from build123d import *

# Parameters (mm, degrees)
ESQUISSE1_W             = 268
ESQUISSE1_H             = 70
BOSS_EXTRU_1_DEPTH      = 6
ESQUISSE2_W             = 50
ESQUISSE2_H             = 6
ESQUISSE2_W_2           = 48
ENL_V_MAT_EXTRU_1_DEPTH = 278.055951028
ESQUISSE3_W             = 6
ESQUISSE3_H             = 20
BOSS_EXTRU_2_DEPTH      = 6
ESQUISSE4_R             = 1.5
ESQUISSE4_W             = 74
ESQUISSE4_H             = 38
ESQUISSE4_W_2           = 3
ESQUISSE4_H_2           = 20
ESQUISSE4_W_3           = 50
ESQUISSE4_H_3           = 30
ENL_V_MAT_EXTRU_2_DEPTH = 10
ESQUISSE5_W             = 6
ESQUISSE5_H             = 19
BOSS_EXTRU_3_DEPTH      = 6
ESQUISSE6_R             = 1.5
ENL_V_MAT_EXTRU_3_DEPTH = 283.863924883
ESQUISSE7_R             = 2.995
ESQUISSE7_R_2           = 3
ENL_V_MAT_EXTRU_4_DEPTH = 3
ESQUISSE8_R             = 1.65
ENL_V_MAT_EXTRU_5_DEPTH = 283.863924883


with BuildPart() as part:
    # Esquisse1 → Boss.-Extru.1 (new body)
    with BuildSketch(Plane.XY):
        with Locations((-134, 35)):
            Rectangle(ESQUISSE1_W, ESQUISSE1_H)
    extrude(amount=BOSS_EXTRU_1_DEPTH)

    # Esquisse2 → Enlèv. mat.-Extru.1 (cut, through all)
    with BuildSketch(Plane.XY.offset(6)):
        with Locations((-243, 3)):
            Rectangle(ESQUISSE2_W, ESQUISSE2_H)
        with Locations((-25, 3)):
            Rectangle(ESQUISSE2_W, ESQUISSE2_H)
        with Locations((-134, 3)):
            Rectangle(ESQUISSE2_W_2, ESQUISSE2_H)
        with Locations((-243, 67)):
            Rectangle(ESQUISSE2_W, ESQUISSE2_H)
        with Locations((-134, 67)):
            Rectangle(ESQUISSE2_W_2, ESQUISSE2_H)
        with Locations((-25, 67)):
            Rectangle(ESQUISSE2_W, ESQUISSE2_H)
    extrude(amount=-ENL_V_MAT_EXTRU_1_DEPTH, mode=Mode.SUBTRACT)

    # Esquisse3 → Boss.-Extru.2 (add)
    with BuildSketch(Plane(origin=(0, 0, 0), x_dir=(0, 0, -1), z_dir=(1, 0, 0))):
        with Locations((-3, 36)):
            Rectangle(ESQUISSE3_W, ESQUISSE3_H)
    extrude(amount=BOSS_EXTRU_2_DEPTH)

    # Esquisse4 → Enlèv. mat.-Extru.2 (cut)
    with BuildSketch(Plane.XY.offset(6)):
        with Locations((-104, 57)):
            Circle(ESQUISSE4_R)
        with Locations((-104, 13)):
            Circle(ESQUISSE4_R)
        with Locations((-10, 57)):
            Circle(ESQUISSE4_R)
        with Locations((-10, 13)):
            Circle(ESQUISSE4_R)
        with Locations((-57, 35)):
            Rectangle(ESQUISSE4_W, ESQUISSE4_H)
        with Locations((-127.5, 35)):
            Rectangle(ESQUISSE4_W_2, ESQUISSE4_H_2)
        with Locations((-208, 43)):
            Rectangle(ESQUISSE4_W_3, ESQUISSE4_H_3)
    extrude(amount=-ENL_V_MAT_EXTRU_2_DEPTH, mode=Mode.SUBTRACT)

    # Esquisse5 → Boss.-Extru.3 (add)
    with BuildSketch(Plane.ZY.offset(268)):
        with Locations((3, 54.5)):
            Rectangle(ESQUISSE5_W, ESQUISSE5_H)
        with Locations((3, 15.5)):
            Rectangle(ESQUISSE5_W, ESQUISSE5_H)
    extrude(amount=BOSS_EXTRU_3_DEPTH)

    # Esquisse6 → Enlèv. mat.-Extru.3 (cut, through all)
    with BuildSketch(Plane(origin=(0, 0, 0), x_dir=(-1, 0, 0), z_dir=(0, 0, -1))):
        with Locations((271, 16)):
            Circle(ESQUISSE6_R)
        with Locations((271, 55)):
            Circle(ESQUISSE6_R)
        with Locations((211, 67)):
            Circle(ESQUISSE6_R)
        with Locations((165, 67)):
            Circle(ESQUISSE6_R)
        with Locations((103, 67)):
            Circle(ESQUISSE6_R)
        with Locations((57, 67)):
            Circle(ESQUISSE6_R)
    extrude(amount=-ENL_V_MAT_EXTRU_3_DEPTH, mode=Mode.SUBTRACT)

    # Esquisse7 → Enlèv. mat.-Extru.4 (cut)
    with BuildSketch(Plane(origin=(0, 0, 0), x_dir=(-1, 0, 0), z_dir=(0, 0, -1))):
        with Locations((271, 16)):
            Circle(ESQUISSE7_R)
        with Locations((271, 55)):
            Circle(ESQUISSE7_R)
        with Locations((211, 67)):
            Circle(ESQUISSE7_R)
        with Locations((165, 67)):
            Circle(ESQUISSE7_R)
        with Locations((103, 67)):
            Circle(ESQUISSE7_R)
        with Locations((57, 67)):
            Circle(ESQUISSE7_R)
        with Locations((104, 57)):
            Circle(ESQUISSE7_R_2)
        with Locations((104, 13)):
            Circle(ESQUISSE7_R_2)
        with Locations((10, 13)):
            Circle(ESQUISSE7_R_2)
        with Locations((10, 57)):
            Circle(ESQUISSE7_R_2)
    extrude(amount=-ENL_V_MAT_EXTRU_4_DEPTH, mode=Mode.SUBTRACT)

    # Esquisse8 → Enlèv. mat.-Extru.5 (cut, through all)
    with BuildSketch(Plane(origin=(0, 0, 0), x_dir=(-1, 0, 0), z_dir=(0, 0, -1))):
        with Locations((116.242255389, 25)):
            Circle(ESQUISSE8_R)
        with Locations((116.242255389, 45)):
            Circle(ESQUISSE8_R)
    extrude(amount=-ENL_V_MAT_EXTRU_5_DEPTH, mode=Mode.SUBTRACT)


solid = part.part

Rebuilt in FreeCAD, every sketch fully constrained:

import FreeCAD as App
import Part
import Sketcher
from FreeCAD import Vector


def add_polygon(sketch, points):
    """Adds a closed chain of lines whose ends are joined by coincident constraints."""
    first, n = sketch.GeometryCount, len(points)
    for a, b in zip(points, points[1:] + points[:1]):
        sketch.addGeometry(Part.LineSegment(App.Vector(*a, 0), App.Vector(*b, 0)), False)
    for i in range(n):
        sketch.addConstraint(Sketcher.Constraint("Coincident", first + i, 2, first + (i + 1) % n, 1))

doc = App.newDocument("Part")
body = doc.addObject("PartDesign::Body", "Body")

sketch1 = body.newObject("Sketcher::SketchObject", "Sketch")
sketch1.AttachmentSupport = (doc.getObject("XY_Plane"), [""])
sketch1.MapMode = "FlatFace"
add_polygon(sketch1, [(-268, 70), (-268, 0), (0, 0), (0, 70)])
sketch1.addConstraint([
    Sketcher.Constraint("Vertical", 0),
    Sketcher.Constraint("Horizontal", 1),
    Sketcher.Constraint("Vertical", 2),
    Sketcher.Constraint("Horizontal", 3),
    Sketcher.Constraint("Coincident", 1, 2, -1, 1),
    Sketcher.Constraint("DistanceX", 1, 1, 1, 2, 268.0),
    Sketcher.Constraint("DistanceY", 0, 2, 0, 1, 70.0),
])
pad1 = body.newObject("PartDesign::Pad", "Pad")
pad1.Profile = sketch1
pad1.Length = 6

sketch2 = body.newObject("Sketcher::SketchObject", "Sketch001")
sketch2.AttachmentSupport = (doc.getObject("XY_Plane"), [""])
sketch2.MapMode = "FlatFace"
sketch2.AttachmentOffset = App.Placement(Vector(0, 0, 6), App.Rotation())
add_polygon(sketch2, [(-268, 6), (-268, 0), (-218, 0), (-218, 6)])
add_polygon(sketch2, [(-50, 6), (-50, 0), (0, 0), (0, 6)])
add_polygon(sketch2, [(-158, 6), (-158, 0), (-110, 0), (-110, 6)])
add_polygon(sketch2, [(-268, 70), (-268, 64), (-218, 64), (-218, 70)])
add_polygon(sketch2, [(-158, 70), (-158, 64), (-110, 64), (-110, 70)])
add_polygon(sketch2, [(-50, 70), (-50, 64), (0, 64), (0, 70)])
sketch2.addConstraint([
    Sketcher.Constraint("Vertical", 0),
    Sketcher.Constraint("Horizontal", 1),
    Sketcher.Constraint("Vertical", 2),
    Sketcher.Constraint("Horizontal", 3),
    Sketcher.Constraint("Vertical", 4),
    Sketcher.Constraint("Horizontal", 5),
    Sketcher.Constraint("Vertical", 6),
    Sketcher.Constraint("Horizontal", 7),
    Sketcher.Constraint("Vertical", 8),
    Sketcher.Constraint("Horizontal", 9),
    Sketcher.Constraint("Vertical", 10),
    Sketcher.Constraint("Horizontal", 11),
    Sketcher.Constraint("Vertical", 12),
    Sketcher.Constraint("Horizontal", 13),
    Sketcher.Constraint("Vertical", 14),
    Sketcher.Constraint("Horizontal", 15),
    Sketcher.Constraint("Vertical", 16),
    Sketcher.Constraint("Horizontal", 17),
    Sketcher.Constraint("Vertical", 18),
    Sketcher.Constraint("Horizontal", 19),
    Sketcher.Constraint("Vertical", 20),
    Sketcher.Constraint("Horizontal", 21),
    Sketcher.Constraint("Vertical", 22),
    Sketcher.Constraint("Horizontal", 23),
    Sketcher.Constraint("Coincident", 5, 2, -1, 1),
    Sketcher.Constraint("PointOnObject", 0, 2, -1),
    Sketcher.Constraint("PointOnObject", 8, 2, -1),
    Sketcher.Constraint("PointOnObject", 21, 2, -2),
    Sketcher.Constraint("Horizontal", 3, 2, 6, 2),
    Sketcher.Constraint("Horizontal", 7, 2, 10, 2),
    Sketcher.Constraint("Horizontal", 13, 2, 16, 2),
    Sketcher.Constraint("Horizontal", 15, 2, 18, 2),
    Sketcher.Constraint("Horizontal", 17, 2, 20, 2),
    Sketcher.Constraint("Horizontal", 19, 2, 22, 2),
    Sketcher.Constraint("Vertical", 3, 2, 12, 2),
    Sketcher.Constraint("Vertical", 2, 2, 13, 2),
    Sketcher.Constraint("Vertical", 11, 2, 16, 2),
    Sketcher.Constraint("Vertical", 10, 2, 17, 2),
    Sketcher.Constraint("Vertical", 7, 2, 20, 2),
    Sketcher.Constraint("Equal", 3, 5),
    Sketcher.Constraint("Equal", 10, 12),
    Sketcher.Constraint("DistanceX", 1, 1, 1, 2, 50.0),
    Sketcher.Constraint("DistanceX", 9, 1, 9, 2, 48.0),
    Sketcher.Constraint("DistanceY", 0, 2, 0, 1, 6.0),
    Sketcher.Constraint("DistanceX", 0, 2, -1, 1, 268.0),
    Sketcher.Constraint("DistanceX", 8, 2, -1, 1, 158.0),
    Sketcher.Constraint("DistanceY", -1, 1, 12, 2, 64.0),
])
pocket1 = body.newObject("PartDesign::Pocket", "Pocket")
pocket1.Profile = sketch2
pocket1.Type = "ThroughAll"

sketch3 = body.newObject("Sketcher::SketchObject", "Sketch002")
sketch3.AttachmentSupport = (doc.getObject("YZ_Plane"), [""])
sketch3.MapMode = "FlatFace"
add_polygon(sketch3, [(46, 6), (26, 6), (26, 0), (46, 0)])
sketch3.addConstraint([
    Sketcher.Constraint("Horizontal", 0),
    Sketcher.Constraint("Vertical", 1),
    Sketcher.Constraint("Horizontal", 2),
    Sketcher.Constraint("Vertical", 3),
    Sketcher.Constraint("PointOnObject", 1, 2, -1),
    Sketcher.Constraint("DistanceX", 0, 2, 0, 1, 20.0),
    Sketcher.Constraint("DistanceY", 1, 2, 1, 1, 6.0),
    Sketcher.Constraint("DistanceX", -1, 1, 0, 2, 26.0),
])
pad2 = body.newObject("PartDesign::Pad", "Pad001")
pad2.Profile = sketch3
pad2.Length = 6

sketch4 = body.newObject("Sketcher::SketchObject", "Sketch003")
sketch4.AttachmentSupport = (doc.getObject("XY_Plane"), [""])
sketch4.MapMode = "FlatFace"
sketch4.AttachmentOffset = App.Placement(Vector(0, 0, 6), App.Rotation())
sketch4.addGeometry(Part.Circle(Vector(-104, 57, 0), Vector(0, 0, 1), 1.5), False)
sketch4.addGeometry(Part.Circle(Vector(-104, 13, 0), Vector(0, 0, 1), 1.5), False)
sketch4.addGeometry(Part.Circle(Vector(-10, 57, 0), Vector(0, 0, 1), 1.5), False)
sketch4.addGeometry(Part.Circle(Vector(-10, 13, 0), Vector(0, 0, 1), 1.5), False)
add_polygon(sketch4, [(-94, 54), (-94, 16), (-20, 16), (-20, 54)])
add_polygon(sketch4, [(-129, 45), (-129, 25), (-126, 25), (-126, 45)])
add_polygon(sketch4, [(-233, 58), (-233, 28), (-183, 28), (-183, 58)])
sketch4.addConstraint([
    Sketcher.Constraint("Vertical", 4),
    Sketcher.Constraint("Horizontal", 5),
    Sketcher.Constraint("Vertical", 6),
    Sketcher.Constraint("Horizontal", 7),
    Sketcher.Constraint("Vertical", 8),
    Sketcher.Constraint("Horizontal", 9),
    Sketcher.Constraint("Vertical", 10),
    Sketcher.Constraint("Horizontal", 11),
    Sketcher.Constraint("Vertical", 12),
    Sketcher.Constraint("Horizontal", 13),
    Sketcher.Constraint("Vertical", 14),
    Sketcher.Constraint("Horizontal", 15),
    Sketcher.Constraint("Equal", 0, 1),
    Sketcher.Constraint("Equal", 1, 2),
    Sketcher.Constraint("Equal", 2, 3),
    Sketcher.Constraint("Horizontal", 0, 3, 2, 3),
    Sketcher.Constraint("Horizontal", 1, 3, 3, 3),
    Sketcher.Constraint("Vertical", 0, 3, 1, 3),
    Sketcher.Constraint("Vertical", 2, 3, 3, 3),
    Sketcher.Constraint("Diameter", 0, 3.0),
    Sketcher.Constraint("DistanceX", 5, 1, 5, 2, 74.0),
    Sketcher.Constraint("DistanceX", 9, 1, 9, 2, 3.0),
    Sketcher.Constraint("DistanceX", 13, 1, 13, 2, 50.0),
    Sketcher.Constraint("DistanceY", 4, 2, 4, 1, 38.0),
    Sketcher.Constraint("DistanceY", 8, 2, 8, 1, 20.0),
    Sketcher.Constraint("DistanceY", 12, 2, 12, 1, 30.0),
    Sketcher.Constraint("DistanceX", 0, 3, -1, 1, 104.0),
    Sketcher.Constraint("DistanceY", -1, 1, 0, 3, 57.0),
    Sketcher.Constraint("DistanceY", -1, 1, 1, 3, 13.0),
    Sketcher.Constraint("DistanceX", 2, 3, -1, 1, 10.0),
    Sketcher.Constraint("DistanceX", 4, 2, -1, 1, 94.0),
    Sketcher.Constraint("DistanceY", -1, 1, 4, 2, 16.0),
    Sketcher.Constraint("DistanceX", 8, 2, -1, 1, 129.0),
    Sketcher.Constraint("DistanceY", -1, 1, 8, 2, 25.0),
    Sketcher.Constraint("DistanceX", 12, 2, -1, 1, 233.0),
    Sketcher.Constraint("DistanceY", -1, 1, 12, 2, 28.0),
])
pocket2 = body.newObject("PartDesign::Pocket", "Pocket001")
pocket2.Profile = sketch4
pocket2.Length = 10

sketch5 = body.newObject("Sketcher::SketchObject", "Sketch004")
sketch5.AttachmentSupport = (doc.getObject("YZ_Plane"), [""])
sketch5.MapMode = "FlatFace"
sketch5.AttachmentOffset = App.Placement(Vector(0, 0, -268), App.Rotation())
add_polygon(sketch5, [(64, 0), (45, 0), (45, 6), (64, 6)])
add_polygon(sketch5, [(25, 0), (6, 0), (6, 6), (25, 6)])
sketch5.addConstraint([
    Sketcher.Constraint("Horizontal", 0),
    Sketcher.Constraint("Vertical", 1),
    Sketcher.Constraint("Horizontal", 2),
    Sketcher.Constraint("Vertical", 3),
    Sketcher.Constraint("Horizontal", 4),
    Sketcher.Constraint("Vertical", 5),
    Sketcher.Constraint("Horizontal", 6),
    Sketcher.Constraint("Vertical", 7),
    Sketcher.Constraint("PointOnObject", 0, 2, -1),
    Sketcher.Constraint("PointOnObject", 4, 2, -1),
    Sketcher.Constraint("Horizontal", 2, 2, 5, 2),
    Sketcher.Constraint("Equal", 2, 4),
    Sketcher.Constraint("DistanceX", 0, 2, 0, 1, 19.0),
    Sketcher.Constraint("DistanceY", 1, 1, 1, 2, 6.0),
    Sketcher.Constraint("DistanceX", -1, 1, 0, 2, 45.0),
    Sketcher.Constraint("DistanceX", -1, 1, 4, 2, 6.0),
])
pad3 = body.newObject("PartDesign::Pad", "Pad002")
pad3.Profile = sketch5
pad3.Length = 6
pad3.Reversed = True

sketch6 = body.newObject("Sketcher::SketchObject", "Sketch005")
sketch6.AttachmentSupport = (doc.getObject("XY_Plane"), [""])
sketch6.MapMode = "FlatFace"
sketch6.addGeometry([
    Part.Circle(Vector(-271, 16, 0), Vector(0, 0, 1), 1.5),
    Part.Circle(Vector(-271, 55, 0), Vector(0, 0, 1), 1.5),
    Part.Circle(Vector(-211, 67, 0), Vector(0, 0, 1), 1.5),
    Part.Circle(Vector(-165, 67, 0), Vector(0, 0, 1), 1.5),
    Part.Circle(Vector(-103, 67, 0), Vector(0, 0, 1), 1.5),
    Part.Circle(Vector(-57, 67, 0), Vector(0, 0, 1), 1.5),
], False)
sketch6.addConstraint([
    Sketcher.Constraint("Equal", 0, 1),
    Sketcher.Constraint("Equal", 1, 2),
    Sketcher.Constraint("Equal", 2, 3),
    Sketcher.Constraint("Equal", 3, 4),
    Sketcher.Constraint("Equal", 4, 5),
    Sketcher.Constraint("Horizontal", 2, 3, 3, 3),
    Sketcher.Constraint("Horizontal", 3, 3, 4, 3),
    Sketcher.Constraint("Horizontal", 4, 3, 5, 3),
    Sketcher.Constraint("Vertical", 0, 3, 1, 3),
    Sketcher.Constraint("Diameter", 0, 3.0),
    Sketcher.Constraint("DistanceX", 0, 3, -1, 1, 271.0),
    Sketcher.Constraint("DistanceY", -1, 1, 0, 3, 16.0),
    Sketcher.Constraint("DistanceY", -1, 1, 1, 3, 55.0),
    Sketcher.Constraint("DistanceX", 2, 3, -1, 1, 211.0),
    Sketcher.Constraint("DistanceY", -1, 1, 2, 3, 67.0),
    Sketcher.Constraint("DistanceX", 3, 3, -1, 1, 165.0),
    Sketcher.Constraint("DistanceX", 4, 3, -1, 1, 103.0),
    Sketcher.Constraint("DistanceX", 5, 3, -1, 1, 57.0),
])
pocket3 = body.newObject("PartDesign::Pocket", "Pocket002")
pocket3.Profile = sketch6
pocket3.Type = "ThroughAll"
pocket3.Reversed = True

sketch7 = body.newObject("Sketcher::SketchObject", "Sketch006")
sketch7.AttachmentSupport = (doc.getObject("XY_Plane"), [""])
sketch7.MapMode = "FlatFace"
sketch7.addGeometry([
    Part.Circle(Vector(-271, 16, 0), Vector(0, 0, 1), 3),
    Part.Circle(Vector(-271, 55, 0), Vector(0, 0, 1), 3),
    Part.Circle(Vector(-211, 67, 0), Vector(0, 0, 1), 3),
    Part.Circle(Vector(-165, 67, 0), Vector(0, 0, 1), 3),
    Part.Circle(Vector(-103, 67, 0), Vector(0, 0, 1), 3),
    Part.Circle(Vector(-57, 67, 0), Vector(0, 0, 1), 3),
    Part.Circle(Vector(-104, 57, 0), Vector(0, 0, 1), 3),
    Part.Circle(Vector(-104, 13, 0), Vector(0, 0, 1), 3),
    Part.Circle(Vector(-10, 13, 0), Vector(0, 0, 1), 3),
    Part.Circle(Vector(-10, 57, 0), Vector(0, 0, 1), 3),
], False)
sketch7.addConstraint([
    Sketcher.Constraint("Equal", 0, 1),
    Sketcher.Constraint("Equal", 1, 2),
    Sketcher.Constraint("Equal", 2, 3),
    Sketcher.Constraint("Equal", 3, 4),
    Sketcher.Constraint("Equal", 4, 5),
    Sketcher.Constraint("Equal", 6, 7),
    Sketcher.Constraint("Equal", 7, 8),
    Sketcher.Constraint("Equal", 8, 9),
    Sketcher.Constraint("Horizontal", 2, 3, 3, 3),
    Sketcher.Constraint("Horizontal", 3, 3, 4, 3),
    Sketcher.Constraint("Horizontal", 4, 3, 5, 3),
    Sketcher.Constraint("Horizontal", 7, 3, 8, 3),
    Sketcher.Constraint("Horizontal", 6, 3, 9, 3),
    Sketcher.Constraint("Vertical", 0, 3, 1, 3),
    Sketcher.Constraint("Vertical", 6, 3, 7, 3),
    Sketcher.Constraint("Vertical", 8, 3, 9, 3),
    Sketcher.Constraint("Diameter", 6, 6.0),
    Sketcher.Constraint("Diameter", 0, 5.99),
    Sketcher.Constraint("DistanceX", 0, 3, -1, 1, 271.0),
    Sketcher.Constraint("DistanceY", -1, 1, 0, 3, 16.0),
    Sketcher.Constraint("DistanceY", -1, 1, 1, 3, 55.0),
    Sketcher.Constraint("DistanceX", 2, 3, -1, 1, 211.0),
    Sketcher.Constraint("DistanceY", -1, 1, 2, 3, 67.0),
    Sketcher.Constraint("DistanceX", 3, 3, -1, 1, 165.0),
    Sketcher.Constraint("DistanceX", 4, 3, -1, 1, 103.0),
    Sketcher.Constraint("DistanceX", 5, 3, -1, 1, 57.0),
    Sketcher.Constraint("DistanceX", 6, 3, -1, 1, 104.0),
    Sketcher.Constraint("DistanceY", -1, 1, 6, 3, 57.0),
    Sketcher.Constraint("DistanceY", -1, 1, 7, 3, 13.0),
    Sketcher.Constraint("DistanceX", 8, 3, -1, 1, 10.0),
])
pocket4 = body.newObject("PartDesign::Pocket", "Pocket003")
pocket4.Profile = sketch7
pocket4.Length = 3
pocket4.Reversed = True

sketch8 = body.newObject("Sketcher::SketchObject", "Sketch007")
sketch8.AttachmentSupport = (doc.getObject("XY_Plane"), [""])
sketch8.MapMode = "FlatFace"
sketch8.addGeometry([
    Part.Circle(Vector(-116.2, 25, 0), Vector(0, 0, 1), 1.6),
    Part.Circle(Vector(-116.2, 45, 0), Vector(0, 0, 1), 1.6),
], False)
sketch8.addConstraint([
    Sketcher.Constraint("Equal", 0, 1),
    Sketcher.Constraint("Vertical", 0, 3, 1, 3),
    Sketcher.Constraint("Diameter", 0, 3.3),
    Sketcher.Constraint("DistanceY", -1, 1, 0, 3, 25.0),
    Sketcher.Constraint("DistanceY", -1, 1, 1, 3, 45.0),
    Sketcher.Constraint("DistanceX", 0, 3, -1, 1, 116.242255),
])
pocket5 = body.newObject("PartDesign::Pocket", "Pocket004")
pocket5.Profile = sketch8
pocket5.Type = "ThroughAll"
pocket5.Reversed = True

doc.recompute()
